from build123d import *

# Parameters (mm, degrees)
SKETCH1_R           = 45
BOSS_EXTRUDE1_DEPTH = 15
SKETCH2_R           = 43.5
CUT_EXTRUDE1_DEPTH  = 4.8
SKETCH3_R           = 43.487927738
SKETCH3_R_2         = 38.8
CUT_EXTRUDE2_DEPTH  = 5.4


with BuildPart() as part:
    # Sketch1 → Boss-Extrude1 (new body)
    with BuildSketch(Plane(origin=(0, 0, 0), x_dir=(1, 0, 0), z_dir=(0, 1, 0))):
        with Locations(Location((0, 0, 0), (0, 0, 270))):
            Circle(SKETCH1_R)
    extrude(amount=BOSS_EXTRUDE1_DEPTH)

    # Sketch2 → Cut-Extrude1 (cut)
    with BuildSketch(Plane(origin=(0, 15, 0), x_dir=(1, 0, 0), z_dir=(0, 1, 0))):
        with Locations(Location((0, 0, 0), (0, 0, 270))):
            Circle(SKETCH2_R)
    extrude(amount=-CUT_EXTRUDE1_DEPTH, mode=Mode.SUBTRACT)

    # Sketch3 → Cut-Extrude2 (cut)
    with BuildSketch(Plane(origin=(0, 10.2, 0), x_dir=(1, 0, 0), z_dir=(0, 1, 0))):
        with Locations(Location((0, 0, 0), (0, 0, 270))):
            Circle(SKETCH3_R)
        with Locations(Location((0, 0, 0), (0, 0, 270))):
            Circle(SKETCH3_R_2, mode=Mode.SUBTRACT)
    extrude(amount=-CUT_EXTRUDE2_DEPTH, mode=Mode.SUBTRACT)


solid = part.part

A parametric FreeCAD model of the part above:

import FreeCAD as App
import Part
import Sketcher
from FreeCAD import Vector
Q = App.Units.Quantity

doc = App.newDocument("Part")
body = doc.addObject("PartDesign::Body", "Body")

# Sketch on XZ plane
sketch1 = body.newObject("Sketcher::SketchObject", "Sketch")
sketch1.AttachmentSupport = (doc.getObject("XZ_Plane"), [""])
sketch1.MapMode = "FlatFace"
sketch1.addGeometry(Part.Circle(Vector(0, 0, 0), Vector(0, 0, 1), 45), False)
sketch1.addConstraint(Sketcher.Constraint("Coincident", 0, 3, -1, 1))
sketch1.addConstraint(Sketcher.Constraint("Diameter", 0, Q("90 mm")))
pad1 = body.newObject("PartDesign::Pad", "Pad")
pad1.Profile = sketch1
pad1.Length = 15
pad1.Reversed = True

# Sketch on XZ plane
sketch2 = body.newObject("Sketcher::SketchObject", "Sketch001")
sketch2.AttachmentSupport = (doc.getObject("XZ_Plane"), [""])
sketch2.MapMode = "FlatFace"
sketch2.AttachmentOffset = App.Placement(Vector(0, 0, -15), App.Rotation())
sketch2.addGeometry(Part.Circle(Vector(0, 0, 0), Vector(0, 0, 1), 44), False)
sketch2.addConstraint(Sketcher.Constraint("Coincident", 0, 3, -1, 1))
sketch2.addConstraint(Sketcher.Constraint("Diameter", 0, Q("87 mm")))
pocket1 = body.newObject("PartDesign::Pocket", "Pocket")
pocket1.Profile = sketch2
pocket1.Length = 4.8
pocket1.Reversed = True

# Sketch on XZ plane
sketch3 = body.newObject("Sketcher::SketchObject", "Sketch002")
sketch3.AttachmentSupport = (doc.getObject("XZ_Plane"), [""])
sketch3.MapMode = "FlatFace"
sketch3.AttachmentOffset = App.Placement(Vector(0, 0, -10.2), App.Rotation())
sketch3.addGeometry(Part.Circle(Vector(0, 0, 0), Vector(0, 0, 1), 43), False)
sketch3.addGeometry(Part.Circle(Vector(0, 0, 0), Vector(0, 0, 1), 39), False)
sketch3.addConstraint(Sketcher.Constraint("Coincident", 0, 3, -1, 1))
sketch3.addConstraint(Sketcher.Constraint("Coincident", 1, 3, -1, 1))
sketch3.addConstraint(Sketcher.Constraint("Diameter", 1, Q("77.6 mm")))
sketch3.addConstraint(Sketcher.Constraint("Diameter", 0, Q("86.975855 mm")))
pocket2 = body.newObject("PartDesign::Pocket", "Pocket001")
pocket2.Profile = sketch3
pocket2.Length = 5.4
pocket2.Reversed = True

doc.recompute()
